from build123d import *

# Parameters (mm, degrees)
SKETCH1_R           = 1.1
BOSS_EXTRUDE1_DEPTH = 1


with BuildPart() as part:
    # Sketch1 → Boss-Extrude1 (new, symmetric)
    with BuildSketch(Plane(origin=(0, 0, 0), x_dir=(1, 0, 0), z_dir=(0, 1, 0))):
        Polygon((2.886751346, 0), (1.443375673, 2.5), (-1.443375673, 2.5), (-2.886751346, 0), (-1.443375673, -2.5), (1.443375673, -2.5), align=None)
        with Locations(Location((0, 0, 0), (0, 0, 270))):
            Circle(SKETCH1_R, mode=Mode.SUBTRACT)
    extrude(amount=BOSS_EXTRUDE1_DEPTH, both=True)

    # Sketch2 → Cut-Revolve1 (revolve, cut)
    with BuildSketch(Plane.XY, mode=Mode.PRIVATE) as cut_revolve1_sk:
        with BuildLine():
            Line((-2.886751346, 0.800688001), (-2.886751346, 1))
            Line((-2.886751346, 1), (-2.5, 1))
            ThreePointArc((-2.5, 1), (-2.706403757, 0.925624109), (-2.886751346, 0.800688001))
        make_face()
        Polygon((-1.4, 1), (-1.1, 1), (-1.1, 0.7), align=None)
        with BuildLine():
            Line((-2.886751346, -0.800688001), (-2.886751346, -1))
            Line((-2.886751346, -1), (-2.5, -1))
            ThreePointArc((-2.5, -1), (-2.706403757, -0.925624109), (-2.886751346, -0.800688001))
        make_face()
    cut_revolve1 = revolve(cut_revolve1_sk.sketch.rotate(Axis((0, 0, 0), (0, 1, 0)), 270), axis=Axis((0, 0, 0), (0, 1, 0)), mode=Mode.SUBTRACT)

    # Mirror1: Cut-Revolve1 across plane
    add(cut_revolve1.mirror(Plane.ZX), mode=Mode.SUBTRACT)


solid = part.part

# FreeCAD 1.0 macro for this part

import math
import FreeCAD as App
import Part
import Sketcher
from FreeCAD import Vector
Q = App.Units.Quantity


def add_polygon(sketch, points):
    """Adds a closed chain of lines whose ends are joined by coincident constraints."""
    first, n = sketch.GeometryCount, len(points)
    for a, b in zip(points, points[1:] + points[:1]):
        sketch.addGeometry(Part.LineSegment(App.Vector(*a, 0), App.Vector(*b, 0)), False)
    for i in range(n):
        sketch.addConstraint(Sketcher.Constraint("Coincident", first + i, 2, first + (i + 1) % n, 1))

doc = App.newDocument("Part")
body = doc.addObject("PartDesign::Body", "Body")

# Sketch on XZ plane
sketch1 = body.newObject("Sketcher::SketchObject", "Sketch")
sketch1.AttachmentSupport = (doc.getObject("XZ_Plane"), [""])
sketch1.MapMode = "FlatFace"
add_polygon(sketch1, [(2.9, 0), (1.4, -2.5), (-1.4, -2.5), (-2.9, 0), (-1.4, 2.5), (1.4, 2.5)])  # lines 0-5
sketch1.addGeometry(Part.Circle(Vector(0, 0, 0), Vector(0, 0, 1), 1.1), False)  # 6
sketch1.addConstraint([
    Sketcher.Constraint("Horizontal", 1),
    Sketcher.Constraint("Horizontal", 4),
    Sketcher.Constraint("Coincident", 6, 3, -1, 1),
    Sketcher.Constraint("Symmetric", 0, 2, 3, 2, -1, 1),
    Sketcher.Constraint("Symmetric", 2, 2, 5, 2, -1, 1),
    Sketcher.Constraint("PointOnObject", 2, 2, -1),
    Sketcher.Constraint("Parallel", 2, 5),
    Sketcher.Constraint("Vertical", 1, 2, 3, 2),
    Sketcher.Constraint("Diameter", 6, Q("2.2 mm")),
    Sketcher.Constraint("Angle", 0, Q("-120 deg")),
    Sketcher.Constraint("DistanceY", 1, 2, 3, 2, Q("5 mm")),
    Sketcher.Constraint("DistanceX", 1, 2, 1, 1, Q("2.886751 mm")),
])
pad1 = body.newObject("PartDesign::Pad", "Pad")
pad1.Profile = sketch1
pad1.Length = 2
pad1.Midplane = True

# Sketch on XY plane
sketch2 = body.newObject("Sketcher::SketchObject", "Sketch001")
sketch2.AttachmentSupport = (doc.getObject("XY_Plane"), [""])
sketch2.MapMode = "FlatFace"
sketch2.addGeometry(Part.LineSegment(Vector(-2.89, 1, 0), Vector(-2.89, 0.8, 0)), False)  # 0
sketch2.addGeometry(Part.ArcOfCircle(Part.Circle(Vector(-2.32, 0.17, 0), Vector(0, 0, 1), 0.85), math.radians(102), math.radians(132)), False)  # 1
sketch2.addGeometry(Part.LineSegment(Vector(-2.5, 1, 0), Vector(-2.89, 1, 0)), False)  # 2
add_polygon(sketch2, [(-1.1, 1), (-1.4, 1), (-1.1, 0.7)])  # lines 3-5
sketch2.addGeometry(Part.LineSegment(Vector(-2.89, -0.8, 0), Vector(-2.89, -1, 0)), False)  # 6
sketch2.addGeometry(Part.LineSegment(Vector(-2.89, -1, 0), Vector(-2.5, -1, 0)), False)  # 7
sketch2.addGeometry(Part.ArcOfCircle(Part.Circle(Vector(-2.32, -0.17, 0), Vector(0, 0, 1), 0.85), math.radians(-132), math.radians(-102)), False)  # 8
sketch2.addConstraint([
    Sketcher.Constraint("Coincident", 0, 2, 1, 2),
    Sketcher.Constraint("Coincident", 1, 1, 2, 1),
    Sketcher.Constraint("Coincident", 2, 2, 0, 1),
    Sketcher.Constraint("Coincident", 6, 2, 7, 1),
    Sketcher.Constraint("Coincident", 7, 2, 8, 2),
    Sketcher.Constraint("Coincident", 8, 1, 6, 1),
    Sketcher.Constraint("Vertical", 0),
    Sketcher.Constraint("Horizontal", 2),
    Sketcher.Constraint("Horizontal", 3),
    Sketcher.Constraint("Vertical", 5),
    Sketcher.Constraint("Vertical", 6),
    Sketcher.Constraint("Horizontal", 7),
    Sketcher.Constraint("Equal", 1, 8),
    Sketcher.Constraint("Symmetric", 1, 3, 8, 3, -1),
    Sketcher.Constraint("Symmetric", 2, 2, 6, 2, -1),
    Sketcher.Constraint("Horizontal", 2, 2, 3, 2),
    Sketcher.Constraint("Equal", 3, 5),
    Sketcher.Constraint("DistanceX", 3, 2, 3, 1, Q("0.3 mm")),
    Sketcher.Constraint("DistanceY", -1, 1, 1, 1, Q("1 mm")),
    Sketcher.Constraint("DistanceX", 1, 1, -1, 1, Q("2.5 mm")),
    Sketcher.Constraint("DistanceX", 3, 2, -1, 1, Q("1.4 mm")),
    Sketcher.Constraint("Radius", 1, Q("0.846252 mm")),
    Sketcher.Constraint("DistanceX", 2, 2, 2, 1, Q("0.386751 mm")),
    Sketcher.Constraint("DistanceY", 0, 2, 0, 1, Q("0.199312 mm")),
])
groove = body.newObject("PartDesign::Groove", "Groove")
groove.Profile = sketch2
groove.ReferenceAxis = (sketch2, ["V_Axis"])
groove.Angle = 360
doc.recompute()

mirrored = body.newObject("PartDesign::Mirrored", "Mirrored")
mirrored.Originals = [groove]
mirrored.MirrorPlane = (doc.getObject("XZ_Plane"), [""])
body.Tip = mirrored

doc.recompute()
